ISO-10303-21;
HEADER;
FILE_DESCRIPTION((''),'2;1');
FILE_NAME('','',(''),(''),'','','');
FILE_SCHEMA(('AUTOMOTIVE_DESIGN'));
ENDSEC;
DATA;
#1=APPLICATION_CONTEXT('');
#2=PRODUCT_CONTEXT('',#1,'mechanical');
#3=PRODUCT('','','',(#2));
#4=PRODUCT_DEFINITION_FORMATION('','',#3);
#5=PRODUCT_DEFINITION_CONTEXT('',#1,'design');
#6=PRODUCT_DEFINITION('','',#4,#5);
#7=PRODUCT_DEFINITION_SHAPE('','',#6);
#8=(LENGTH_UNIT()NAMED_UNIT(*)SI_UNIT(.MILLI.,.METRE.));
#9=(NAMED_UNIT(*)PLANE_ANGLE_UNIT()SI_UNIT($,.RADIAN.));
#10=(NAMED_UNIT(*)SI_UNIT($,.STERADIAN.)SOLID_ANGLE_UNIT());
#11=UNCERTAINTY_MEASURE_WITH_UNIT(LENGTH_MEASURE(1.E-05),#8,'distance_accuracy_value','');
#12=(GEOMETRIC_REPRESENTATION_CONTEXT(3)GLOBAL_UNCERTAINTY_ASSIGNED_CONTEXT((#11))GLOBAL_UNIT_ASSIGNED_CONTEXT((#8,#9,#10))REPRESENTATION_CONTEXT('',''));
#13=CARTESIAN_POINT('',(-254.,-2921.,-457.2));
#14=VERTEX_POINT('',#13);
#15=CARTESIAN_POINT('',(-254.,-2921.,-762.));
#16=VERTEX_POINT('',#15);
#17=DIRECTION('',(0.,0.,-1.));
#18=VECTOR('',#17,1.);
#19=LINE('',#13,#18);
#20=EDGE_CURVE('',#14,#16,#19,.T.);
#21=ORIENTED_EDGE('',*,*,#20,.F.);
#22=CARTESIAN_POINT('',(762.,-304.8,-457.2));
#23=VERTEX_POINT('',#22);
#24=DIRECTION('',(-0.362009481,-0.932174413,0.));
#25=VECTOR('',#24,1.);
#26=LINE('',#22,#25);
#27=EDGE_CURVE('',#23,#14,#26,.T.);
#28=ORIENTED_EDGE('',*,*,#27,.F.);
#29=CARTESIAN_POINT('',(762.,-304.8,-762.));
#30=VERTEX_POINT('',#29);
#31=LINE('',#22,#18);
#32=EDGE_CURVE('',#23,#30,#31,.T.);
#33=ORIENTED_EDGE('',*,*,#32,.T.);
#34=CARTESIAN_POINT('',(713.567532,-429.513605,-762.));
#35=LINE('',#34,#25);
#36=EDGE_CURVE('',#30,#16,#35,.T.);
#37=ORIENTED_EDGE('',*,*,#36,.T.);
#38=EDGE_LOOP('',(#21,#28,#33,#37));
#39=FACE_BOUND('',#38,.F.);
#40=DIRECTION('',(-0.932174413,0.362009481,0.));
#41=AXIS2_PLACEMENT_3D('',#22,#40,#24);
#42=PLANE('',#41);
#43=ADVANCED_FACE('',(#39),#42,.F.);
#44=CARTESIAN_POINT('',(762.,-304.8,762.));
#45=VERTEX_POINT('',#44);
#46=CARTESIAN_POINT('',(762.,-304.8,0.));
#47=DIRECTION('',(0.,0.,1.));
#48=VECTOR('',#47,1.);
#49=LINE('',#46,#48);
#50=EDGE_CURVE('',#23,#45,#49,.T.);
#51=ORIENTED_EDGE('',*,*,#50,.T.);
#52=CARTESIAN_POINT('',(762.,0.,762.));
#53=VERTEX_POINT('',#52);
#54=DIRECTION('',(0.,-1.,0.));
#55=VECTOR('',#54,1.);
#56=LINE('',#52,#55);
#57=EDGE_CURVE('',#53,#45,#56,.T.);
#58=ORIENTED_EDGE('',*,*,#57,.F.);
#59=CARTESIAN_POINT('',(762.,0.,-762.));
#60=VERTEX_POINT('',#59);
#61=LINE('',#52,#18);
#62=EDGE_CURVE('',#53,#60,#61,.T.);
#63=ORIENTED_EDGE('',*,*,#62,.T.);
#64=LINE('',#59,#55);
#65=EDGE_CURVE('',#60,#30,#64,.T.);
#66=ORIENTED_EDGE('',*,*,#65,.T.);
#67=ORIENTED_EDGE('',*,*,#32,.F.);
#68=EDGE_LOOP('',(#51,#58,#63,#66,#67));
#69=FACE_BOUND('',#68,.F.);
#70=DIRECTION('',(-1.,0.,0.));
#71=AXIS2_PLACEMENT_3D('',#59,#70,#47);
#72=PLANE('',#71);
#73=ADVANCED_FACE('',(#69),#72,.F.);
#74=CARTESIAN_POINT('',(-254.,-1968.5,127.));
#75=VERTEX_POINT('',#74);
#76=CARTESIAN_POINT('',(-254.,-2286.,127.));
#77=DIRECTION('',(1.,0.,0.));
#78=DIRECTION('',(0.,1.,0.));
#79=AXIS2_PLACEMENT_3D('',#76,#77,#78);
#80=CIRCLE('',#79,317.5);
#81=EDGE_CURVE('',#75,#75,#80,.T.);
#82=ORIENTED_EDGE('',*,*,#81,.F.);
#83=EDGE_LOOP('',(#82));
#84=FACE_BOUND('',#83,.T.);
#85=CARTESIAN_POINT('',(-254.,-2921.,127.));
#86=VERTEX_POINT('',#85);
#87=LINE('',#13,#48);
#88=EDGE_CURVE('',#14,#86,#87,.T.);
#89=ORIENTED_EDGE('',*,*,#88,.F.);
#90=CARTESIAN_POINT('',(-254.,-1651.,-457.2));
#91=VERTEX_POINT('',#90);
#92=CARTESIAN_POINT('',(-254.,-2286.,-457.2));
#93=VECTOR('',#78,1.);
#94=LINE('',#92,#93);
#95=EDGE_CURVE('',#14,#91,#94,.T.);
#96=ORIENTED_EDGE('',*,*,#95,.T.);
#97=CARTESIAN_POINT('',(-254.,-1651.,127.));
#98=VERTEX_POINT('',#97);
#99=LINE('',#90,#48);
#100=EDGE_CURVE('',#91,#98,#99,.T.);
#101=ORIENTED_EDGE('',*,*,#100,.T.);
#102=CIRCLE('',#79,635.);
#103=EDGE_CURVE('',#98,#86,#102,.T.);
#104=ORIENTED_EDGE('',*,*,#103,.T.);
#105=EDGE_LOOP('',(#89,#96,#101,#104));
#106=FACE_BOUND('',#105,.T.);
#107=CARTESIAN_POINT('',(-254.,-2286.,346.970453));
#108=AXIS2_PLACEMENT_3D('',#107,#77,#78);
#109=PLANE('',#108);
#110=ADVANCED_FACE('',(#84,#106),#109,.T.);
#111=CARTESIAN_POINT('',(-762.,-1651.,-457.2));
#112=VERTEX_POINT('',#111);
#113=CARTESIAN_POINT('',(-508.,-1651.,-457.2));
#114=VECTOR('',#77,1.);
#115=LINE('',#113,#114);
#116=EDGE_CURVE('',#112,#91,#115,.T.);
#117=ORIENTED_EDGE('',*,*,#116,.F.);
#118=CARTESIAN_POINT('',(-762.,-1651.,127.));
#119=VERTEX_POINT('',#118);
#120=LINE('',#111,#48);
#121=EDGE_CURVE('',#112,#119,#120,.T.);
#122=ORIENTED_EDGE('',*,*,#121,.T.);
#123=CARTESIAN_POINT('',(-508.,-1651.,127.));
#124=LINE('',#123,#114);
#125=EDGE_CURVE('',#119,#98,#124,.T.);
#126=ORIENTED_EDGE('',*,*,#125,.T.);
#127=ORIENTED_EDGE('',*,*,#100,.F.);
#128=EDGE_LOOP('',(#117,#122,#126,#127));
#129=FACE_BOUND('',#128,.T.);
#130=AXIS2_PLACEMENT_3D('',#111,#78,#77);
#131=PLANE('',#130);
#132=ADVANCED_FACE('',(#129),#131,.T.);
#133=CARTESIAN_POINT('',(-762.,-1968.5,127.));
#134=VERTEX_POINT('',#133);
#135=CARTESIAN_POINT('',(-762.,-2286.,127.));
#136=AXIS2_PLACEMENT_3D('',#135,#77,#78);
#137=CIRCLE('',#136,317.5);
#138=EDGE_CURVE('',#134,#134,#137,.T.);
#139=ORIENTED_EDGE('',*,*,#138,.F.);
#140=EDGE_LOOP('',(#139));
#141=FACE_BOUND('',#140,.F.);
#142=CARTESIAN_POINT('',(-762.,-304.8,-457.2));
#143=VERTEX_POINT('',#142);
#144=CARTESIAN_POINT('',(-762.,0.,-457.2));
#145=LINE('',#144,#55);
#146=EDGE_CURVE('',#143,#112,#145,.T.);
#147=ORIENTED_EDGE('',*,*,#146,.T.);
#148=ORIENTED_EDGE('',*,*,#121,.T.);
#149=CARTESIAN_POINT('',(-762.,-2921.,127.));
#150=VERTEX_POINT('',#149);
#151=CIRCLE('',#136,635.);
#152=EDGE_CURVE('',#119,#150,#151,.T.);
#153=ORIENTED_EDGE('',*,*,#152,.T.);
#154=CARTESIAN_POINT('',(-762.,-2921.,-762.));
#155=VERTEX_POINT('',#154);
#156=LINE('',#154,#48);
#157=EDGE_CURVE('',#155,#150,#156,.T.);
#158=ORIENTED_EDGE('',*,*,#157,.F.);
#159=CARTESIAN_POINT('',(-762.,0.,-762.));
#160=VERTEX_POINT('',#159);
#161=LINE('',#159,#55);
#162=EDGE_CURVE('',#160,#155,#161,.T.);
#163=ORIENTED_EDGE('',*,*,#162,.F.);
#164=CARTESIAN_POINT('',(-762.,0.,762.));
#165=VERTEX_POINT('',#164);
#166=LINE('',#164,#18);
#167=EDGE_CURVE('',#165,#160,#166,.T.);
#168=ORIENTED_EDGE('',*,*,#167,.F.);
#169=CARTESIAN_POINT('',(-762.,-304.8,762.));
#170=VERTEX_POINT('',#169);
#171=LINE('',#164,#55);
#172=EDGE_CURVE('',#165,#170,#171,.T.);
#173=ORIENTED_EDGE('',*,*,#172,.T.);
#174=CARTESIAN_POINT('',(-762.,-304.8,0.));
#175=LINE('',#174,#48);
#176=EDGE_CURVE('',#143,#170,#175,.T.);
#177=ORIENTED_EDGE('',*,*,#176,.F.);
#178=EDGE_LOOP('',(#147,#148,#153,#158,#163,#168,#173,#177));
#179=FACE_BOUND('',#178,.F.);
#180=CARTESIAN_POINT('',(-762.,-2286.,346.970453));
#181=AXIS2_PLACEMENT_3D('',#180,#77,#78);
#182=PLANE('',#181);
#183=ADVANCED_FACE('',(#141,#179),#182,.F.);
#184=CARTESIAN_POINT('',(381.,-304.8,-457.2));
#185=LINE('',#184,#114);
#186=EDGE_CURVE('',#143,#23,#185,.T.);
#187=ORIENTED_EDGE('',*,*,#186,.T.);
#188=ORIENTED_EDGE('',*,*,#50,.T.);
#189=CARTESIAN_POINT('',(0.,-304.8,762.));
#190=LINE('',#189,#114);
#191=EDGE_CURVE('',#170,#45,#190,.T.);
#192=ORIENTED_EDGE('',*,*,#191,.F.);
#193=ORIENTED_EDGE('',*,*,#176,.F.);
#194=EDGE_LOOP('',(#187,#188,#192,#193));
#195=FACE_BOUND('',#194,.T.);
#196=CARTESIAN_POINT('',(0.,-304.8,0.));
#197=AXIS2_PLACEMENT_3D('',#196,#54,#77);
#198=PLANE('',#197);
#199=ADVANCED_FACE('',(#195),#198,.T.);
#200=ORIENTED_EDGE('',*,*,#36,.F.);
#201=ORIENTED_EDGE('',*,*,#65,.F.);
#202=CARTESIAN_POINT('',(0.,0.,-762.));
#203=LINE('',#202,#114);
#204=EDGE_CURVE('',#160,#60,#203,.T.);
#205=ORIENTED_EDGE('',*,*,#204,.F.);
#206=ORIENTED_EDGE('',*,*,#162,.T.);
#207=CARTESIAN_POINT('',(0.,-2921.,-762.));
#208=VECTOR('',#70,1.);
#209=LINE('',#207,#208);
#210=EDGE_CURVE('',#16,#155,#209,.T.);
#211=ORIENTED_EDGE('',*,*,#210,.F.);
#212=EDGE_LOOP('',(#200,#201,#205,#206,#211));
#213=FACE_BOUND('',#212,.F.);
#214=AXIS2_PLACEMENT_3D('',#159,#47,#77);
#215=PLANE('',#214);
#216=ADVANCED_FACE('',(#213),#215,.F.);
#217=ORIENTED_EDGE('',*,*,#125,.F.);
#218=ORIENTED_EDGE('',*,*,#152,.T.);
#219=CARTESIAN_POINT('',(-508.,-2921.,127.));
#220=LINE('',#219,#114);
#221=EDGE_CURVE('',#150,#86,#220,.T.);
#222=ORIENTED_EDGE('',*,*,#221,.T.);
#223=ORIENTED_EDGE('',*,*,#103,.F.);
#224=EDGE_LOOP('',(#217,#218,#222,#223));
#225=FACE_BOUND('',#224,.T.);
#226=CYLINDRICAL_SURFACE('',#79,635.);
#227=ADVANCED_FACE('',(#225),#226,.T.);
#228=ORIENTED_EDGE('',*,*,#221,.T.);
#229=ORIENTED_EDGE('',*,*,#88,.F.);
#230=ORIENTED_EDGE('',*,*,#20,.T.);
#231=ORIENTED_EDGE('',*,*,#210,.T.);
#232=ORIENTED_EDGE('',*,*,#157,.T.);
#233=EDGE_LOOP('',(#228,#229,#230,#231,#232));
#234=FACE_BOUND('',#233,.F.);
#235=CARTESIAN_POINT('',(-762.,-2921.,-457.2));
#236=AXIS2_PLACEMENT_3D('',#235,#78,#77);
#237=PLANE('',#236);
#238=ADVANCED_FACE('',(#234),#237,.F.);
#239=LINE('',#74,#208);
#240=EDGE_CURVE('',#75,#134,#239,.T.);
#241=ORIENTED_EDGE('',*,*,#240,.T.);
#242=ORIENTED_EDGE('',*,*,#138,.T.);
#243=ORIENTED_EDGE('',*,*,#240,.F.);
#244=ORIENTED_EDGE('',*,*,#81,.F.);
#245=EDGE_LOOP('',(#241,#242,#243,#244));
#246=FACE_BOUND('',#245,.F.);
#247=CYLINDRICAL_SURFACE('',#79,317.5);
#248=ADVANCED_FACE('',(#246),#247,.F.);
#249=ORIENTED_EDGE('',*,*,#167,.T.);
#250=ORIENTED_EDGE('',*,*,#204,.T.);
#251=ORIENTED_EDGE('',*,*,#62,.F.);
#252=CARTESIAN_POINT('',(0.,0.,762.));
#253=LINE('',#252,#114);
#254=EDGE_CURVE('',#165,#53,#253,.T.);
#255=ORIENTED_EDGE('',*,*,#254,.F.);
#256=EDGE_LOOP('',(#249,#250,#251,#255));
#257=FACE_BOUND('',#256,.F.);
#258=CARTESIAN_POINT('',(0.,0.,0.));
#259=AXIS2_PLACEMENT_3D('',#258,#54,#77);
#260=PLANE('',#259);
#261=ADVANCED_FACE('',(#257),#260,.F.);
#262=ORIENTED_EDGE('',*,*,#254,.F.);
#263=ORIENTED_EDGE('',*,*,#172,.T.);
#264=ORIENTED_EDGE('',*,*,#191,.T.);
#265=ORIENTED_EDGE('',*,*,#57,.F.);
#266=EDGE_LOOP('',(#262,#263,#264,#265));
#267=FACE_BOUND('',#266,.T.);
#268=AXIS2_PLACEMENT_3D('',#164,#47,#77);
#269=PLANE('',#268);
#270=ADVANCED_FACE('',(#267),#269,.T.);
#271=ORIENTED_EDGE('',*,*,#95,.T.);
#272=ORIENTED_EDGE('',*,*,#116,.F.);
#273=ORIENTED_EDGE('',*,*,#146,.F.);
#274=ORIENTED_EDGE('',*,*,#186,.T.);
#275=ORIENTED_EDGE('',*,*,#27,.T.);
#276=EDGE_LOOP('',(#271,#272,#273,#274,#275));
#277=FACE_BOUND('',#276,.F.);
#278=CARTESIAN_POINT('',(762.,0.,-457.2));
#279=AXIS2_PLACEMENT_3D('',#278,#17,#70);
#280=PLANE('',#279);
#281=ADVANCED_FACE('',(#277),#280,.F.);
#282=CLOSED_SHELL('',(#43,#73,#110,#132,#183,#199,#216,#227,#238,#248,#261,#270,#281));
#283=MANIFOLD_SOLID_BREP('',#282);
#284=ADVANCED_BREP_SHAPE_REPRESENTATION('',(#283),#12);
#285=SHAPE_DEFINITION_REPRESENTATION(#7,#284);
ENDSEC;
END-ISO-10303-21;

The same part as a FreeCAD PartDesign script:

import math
import FreeCAD as App
import Part
import Sketcher
Q = App.Units.Quantity


def add_polygon(sketch, points):
    """Adds a closed chain of lines whose ends are joined by coincident constraints."""
    first, n = sketch.GeometryCount, len(points)
    for a, b in zip(points, points[1:] + points[:1]):
        sketch.addGeometry(Part.LineSegment(App.Vector(*a, 0), App.Vector(*b, 0)), False)
    for i in range(n):
        sketch.addConstraint(Sketcher.Constraint("Coincident", first + i, 2, first + (i + 1) % n, 1))

doc = App.newDocument("Part")
body = doc.addObject("PartDesign::Body", "Body")

# Sketch on XZ plane
sketch1 = body.newObject("Sketcher::SketchObject", "Sketch")
sketch1.AttachmentSupport = (doc.getObject("XZ_Plane"), [""])
sketch1.MapMode = "FlatFace"
add_polygon(sketch1, [(-762, 762), (-762, -762), (762, -762), (762, 762)])  # lines 0-3
sketch1.addConstraint([
    Sketcher.Constraint("Vertical", 0),
    Sketcher.Constraint("Horizontal", 1),
    Sketcher.Constraint("Vertical", 2),
    Sketcher.Constraint("Horizontal", 3),
    Sketcher.Constraint("Symmetric", 0, 2, 2, 2, -1, 1),
    Sketcher.Constraint("Equal", 3, 0),
    Sketcher.Constraint("DistanceX", 1, 1, 1, 2, Q("60 in")),
])
pad1 = body.newObject("PartDesign::Pad", "Pad")
pad1.Profile = sketch1
pad1.Length = Q("12 in")

# Sketch on XZ plane
sketch2 = body.newObject("Sketcher::SketchObject", "Sketch001")
sketch2.AttachmentSupport = (doc.getObject("XZ_Plane"), [""])
sketch2.MapMode = "FlatFace"
add_polygon(sketch2, [(762, -457.2), (762, -762), (-762, -762), (-762, -457.2)])  # lines 0-3
sketch2.addConstraint([
    Sketcher.Constraint("Vertical", 0),
    Sketcher.Constraint("Horizontal", 1),
    Sketcher.Constraint("Vertical", 2),
    Sketcher.Constraint("Horizontal", 3),
    Sketcher.Constraint("DistanceX", 1, 2, 1, 1, Q("60 in")),
    Sketcher.Constraint("DistanceY", 0, 2, 0, 1, Q("12 in")),
    Sketcher.Constraint("DistanceX", -1, 1, 0, 2, Q("30 in")),
    Sketcher.Constraint("DistanceY", 0, 2, -1, 1, Q("30 in")),
])
pad2 = body.newObject("PartDesign::Pad", "Pad001")
pad2.Profile = sketch2
pad2.Length = Q("115 in")

# Sketch on XY plane
sketch3 = body.newObject("Sketcher::SketchObject", "Sketch002")
sketch3.AttachmentSupport = (doc.getObject("XY_Plane"), [""])
sketch3.MapMode = "FlatFace"
sketch3.AttachmentOffset = App.Placement(App.Vector(0, 0, -18 * 25.4), App.Rotation())
add_polygon(sketch3, [(-762, -1651), (-762, -2921), (-254, -2921), (-254, -1651)])  # lines 0-3
sketch3.addConstraint([
    Sketcher.Constraint("Vertical", 0),
    Sketcher.Constraint("Horizontal", 1),
    Sketcher.Constraint("Vertical", 2),
    Sketcher.Constraint("Horizontal", 3),
    Sketcher.Constraint("DistanceX", 1, 1, 1, 2, Q("20 in")),
    Sketcher.Constraint("DistanceY", 0, 2, 0, 1, Q("50 in")),
    Sketcher.Constraint("DistanceX", 0, 2, -1, 1, Q("30 in")),
    Sketcher.Constraint("DistanceY", 0, 2, -1, 1, Q("115 in")),
])
pad3 = body.newObject("PartDesign::Pad", "Pad002")
pad3.Profile = sketch3
pad3.Length = Q("23 in")

# Sketch on YZ plane
sketch4 = body.newObject("Sketcher::SketchObject", "Sketch003")
sketch4.AttachmentSupport = (doc.getObject("YZ_Plane"), [""])
sketch4.MapMode = "FlatFace"
sketch4.AttachmentOffset = App.Placement(App.Vector(0, 0, -10 * 25.4), App.Rotation())
sketch4.addGeometry([
    Part.LineSegment(App.Vector(-2921, 127, 0), App.Vector(-1651, 127, 0)),
    Part.ArcOfCircle(Part.Circle(App.Vector(-2286, 127, 0), App.Vector(0, 0, 1), 635), math.radians(0), math.radians(180)),
], False)
sketch4.addConstraint([
    Sketcher.Constraint("Coincident", 0, 1, 1, 2),
    Sketcher.Constraint("Coincident", 1, 1, 0, 2),
    Sketcher.Constraint("Horizontal", 0),
    Sketcher.Constraint("Horizontal", 1, 3, 0, 1),
    Sketcher.Constraint("Radius", 1, Q("25 in")),
    Sketcher.Constraint("DistanceX", 1, 3, -1, 1, Q("90 in")),
    Sketcher.Constraint("DistanceY", -1, 1, 1, 3, Q("5 in")),
])
pad4 = body.newObject("PartDesign::Pad", "Pad003")
pad4.Profile = sketch4
pad4.Length = Q("20 in")
pad4.Reversed = True

# Sketch on YZ plane
sketch5 = body.newObject("Sketcher::SketchObject", "Sketch004")
sketch5.AttachmentSupport = (doc.getObject("YZ_Plane"), [""])
sketch5.MapMode = "FlatFace"
sketch5.AttachmentOffset = App.Placement(App.Vector(0, 0, -10 * 25.4), App.Rotation())
sketch5.addGeometry(Part.Circle(App.Vector(-2286, 127, 0), App.Vector(0, 0, 1), 317.5), False)
sketch5.addConstraint([
    Sketcher.Constraint("Diameter", 0, Q("25 in")),
    Sketcher.Constraint("DistanceX", 0, 3, -1, 1, Q("90 in")),
    Sketcher.Constraint("DistanceY", -1, 1, 0, 3, Q("5 in")),
])
pocket1 = body.newObject("PartDesign::Pocket", "Pocket")
pocket1.Profile = sketch5
pocket1.Length = Q("60.2 in")

# Sketch on XY plane
sketch6 = body.newObject("Sketcher::SketchObject", "Sketch005")
sketch6.AttachmentSupport = (doc.getObject("XY_Plane"), [""])
sketch6.MapMode = "FlatFace"
sketch6.AttachmentOffset = App.Placement(App.Vector(0, 0, -18 * 25.4), App.Rotation())
add_polygon(sketch6, [(762, -304.8), (-254, -2921), (762, -2921)])  # lines 0-2
sketch6.addConstraint([
    Sketcher.Constraint("Horizontal", 1),
    Sketcher.Constraint("Vertical", 2),
    Sketcher.Constraint("DistanceX", 1, 1, 1, 2, Q("40 in")),
    Sketcher.Constraint("DistanceY", 2, 1, 2, 2, Q("103 in")),
    Sketcher.Constraint("DistanceX", 0, 2, -1, 1, Q("10 in")),
    Sketcher.Constraint("DistanceY", 0, 2, -1, 1, Q("115 in")),
])
pocket2 = body.newObject("PartDesign::Pocket", "Pocket001")
pocket2.Profile = sketch6
pocket2.Length = Q("98.1 in")

doc.recompute()
